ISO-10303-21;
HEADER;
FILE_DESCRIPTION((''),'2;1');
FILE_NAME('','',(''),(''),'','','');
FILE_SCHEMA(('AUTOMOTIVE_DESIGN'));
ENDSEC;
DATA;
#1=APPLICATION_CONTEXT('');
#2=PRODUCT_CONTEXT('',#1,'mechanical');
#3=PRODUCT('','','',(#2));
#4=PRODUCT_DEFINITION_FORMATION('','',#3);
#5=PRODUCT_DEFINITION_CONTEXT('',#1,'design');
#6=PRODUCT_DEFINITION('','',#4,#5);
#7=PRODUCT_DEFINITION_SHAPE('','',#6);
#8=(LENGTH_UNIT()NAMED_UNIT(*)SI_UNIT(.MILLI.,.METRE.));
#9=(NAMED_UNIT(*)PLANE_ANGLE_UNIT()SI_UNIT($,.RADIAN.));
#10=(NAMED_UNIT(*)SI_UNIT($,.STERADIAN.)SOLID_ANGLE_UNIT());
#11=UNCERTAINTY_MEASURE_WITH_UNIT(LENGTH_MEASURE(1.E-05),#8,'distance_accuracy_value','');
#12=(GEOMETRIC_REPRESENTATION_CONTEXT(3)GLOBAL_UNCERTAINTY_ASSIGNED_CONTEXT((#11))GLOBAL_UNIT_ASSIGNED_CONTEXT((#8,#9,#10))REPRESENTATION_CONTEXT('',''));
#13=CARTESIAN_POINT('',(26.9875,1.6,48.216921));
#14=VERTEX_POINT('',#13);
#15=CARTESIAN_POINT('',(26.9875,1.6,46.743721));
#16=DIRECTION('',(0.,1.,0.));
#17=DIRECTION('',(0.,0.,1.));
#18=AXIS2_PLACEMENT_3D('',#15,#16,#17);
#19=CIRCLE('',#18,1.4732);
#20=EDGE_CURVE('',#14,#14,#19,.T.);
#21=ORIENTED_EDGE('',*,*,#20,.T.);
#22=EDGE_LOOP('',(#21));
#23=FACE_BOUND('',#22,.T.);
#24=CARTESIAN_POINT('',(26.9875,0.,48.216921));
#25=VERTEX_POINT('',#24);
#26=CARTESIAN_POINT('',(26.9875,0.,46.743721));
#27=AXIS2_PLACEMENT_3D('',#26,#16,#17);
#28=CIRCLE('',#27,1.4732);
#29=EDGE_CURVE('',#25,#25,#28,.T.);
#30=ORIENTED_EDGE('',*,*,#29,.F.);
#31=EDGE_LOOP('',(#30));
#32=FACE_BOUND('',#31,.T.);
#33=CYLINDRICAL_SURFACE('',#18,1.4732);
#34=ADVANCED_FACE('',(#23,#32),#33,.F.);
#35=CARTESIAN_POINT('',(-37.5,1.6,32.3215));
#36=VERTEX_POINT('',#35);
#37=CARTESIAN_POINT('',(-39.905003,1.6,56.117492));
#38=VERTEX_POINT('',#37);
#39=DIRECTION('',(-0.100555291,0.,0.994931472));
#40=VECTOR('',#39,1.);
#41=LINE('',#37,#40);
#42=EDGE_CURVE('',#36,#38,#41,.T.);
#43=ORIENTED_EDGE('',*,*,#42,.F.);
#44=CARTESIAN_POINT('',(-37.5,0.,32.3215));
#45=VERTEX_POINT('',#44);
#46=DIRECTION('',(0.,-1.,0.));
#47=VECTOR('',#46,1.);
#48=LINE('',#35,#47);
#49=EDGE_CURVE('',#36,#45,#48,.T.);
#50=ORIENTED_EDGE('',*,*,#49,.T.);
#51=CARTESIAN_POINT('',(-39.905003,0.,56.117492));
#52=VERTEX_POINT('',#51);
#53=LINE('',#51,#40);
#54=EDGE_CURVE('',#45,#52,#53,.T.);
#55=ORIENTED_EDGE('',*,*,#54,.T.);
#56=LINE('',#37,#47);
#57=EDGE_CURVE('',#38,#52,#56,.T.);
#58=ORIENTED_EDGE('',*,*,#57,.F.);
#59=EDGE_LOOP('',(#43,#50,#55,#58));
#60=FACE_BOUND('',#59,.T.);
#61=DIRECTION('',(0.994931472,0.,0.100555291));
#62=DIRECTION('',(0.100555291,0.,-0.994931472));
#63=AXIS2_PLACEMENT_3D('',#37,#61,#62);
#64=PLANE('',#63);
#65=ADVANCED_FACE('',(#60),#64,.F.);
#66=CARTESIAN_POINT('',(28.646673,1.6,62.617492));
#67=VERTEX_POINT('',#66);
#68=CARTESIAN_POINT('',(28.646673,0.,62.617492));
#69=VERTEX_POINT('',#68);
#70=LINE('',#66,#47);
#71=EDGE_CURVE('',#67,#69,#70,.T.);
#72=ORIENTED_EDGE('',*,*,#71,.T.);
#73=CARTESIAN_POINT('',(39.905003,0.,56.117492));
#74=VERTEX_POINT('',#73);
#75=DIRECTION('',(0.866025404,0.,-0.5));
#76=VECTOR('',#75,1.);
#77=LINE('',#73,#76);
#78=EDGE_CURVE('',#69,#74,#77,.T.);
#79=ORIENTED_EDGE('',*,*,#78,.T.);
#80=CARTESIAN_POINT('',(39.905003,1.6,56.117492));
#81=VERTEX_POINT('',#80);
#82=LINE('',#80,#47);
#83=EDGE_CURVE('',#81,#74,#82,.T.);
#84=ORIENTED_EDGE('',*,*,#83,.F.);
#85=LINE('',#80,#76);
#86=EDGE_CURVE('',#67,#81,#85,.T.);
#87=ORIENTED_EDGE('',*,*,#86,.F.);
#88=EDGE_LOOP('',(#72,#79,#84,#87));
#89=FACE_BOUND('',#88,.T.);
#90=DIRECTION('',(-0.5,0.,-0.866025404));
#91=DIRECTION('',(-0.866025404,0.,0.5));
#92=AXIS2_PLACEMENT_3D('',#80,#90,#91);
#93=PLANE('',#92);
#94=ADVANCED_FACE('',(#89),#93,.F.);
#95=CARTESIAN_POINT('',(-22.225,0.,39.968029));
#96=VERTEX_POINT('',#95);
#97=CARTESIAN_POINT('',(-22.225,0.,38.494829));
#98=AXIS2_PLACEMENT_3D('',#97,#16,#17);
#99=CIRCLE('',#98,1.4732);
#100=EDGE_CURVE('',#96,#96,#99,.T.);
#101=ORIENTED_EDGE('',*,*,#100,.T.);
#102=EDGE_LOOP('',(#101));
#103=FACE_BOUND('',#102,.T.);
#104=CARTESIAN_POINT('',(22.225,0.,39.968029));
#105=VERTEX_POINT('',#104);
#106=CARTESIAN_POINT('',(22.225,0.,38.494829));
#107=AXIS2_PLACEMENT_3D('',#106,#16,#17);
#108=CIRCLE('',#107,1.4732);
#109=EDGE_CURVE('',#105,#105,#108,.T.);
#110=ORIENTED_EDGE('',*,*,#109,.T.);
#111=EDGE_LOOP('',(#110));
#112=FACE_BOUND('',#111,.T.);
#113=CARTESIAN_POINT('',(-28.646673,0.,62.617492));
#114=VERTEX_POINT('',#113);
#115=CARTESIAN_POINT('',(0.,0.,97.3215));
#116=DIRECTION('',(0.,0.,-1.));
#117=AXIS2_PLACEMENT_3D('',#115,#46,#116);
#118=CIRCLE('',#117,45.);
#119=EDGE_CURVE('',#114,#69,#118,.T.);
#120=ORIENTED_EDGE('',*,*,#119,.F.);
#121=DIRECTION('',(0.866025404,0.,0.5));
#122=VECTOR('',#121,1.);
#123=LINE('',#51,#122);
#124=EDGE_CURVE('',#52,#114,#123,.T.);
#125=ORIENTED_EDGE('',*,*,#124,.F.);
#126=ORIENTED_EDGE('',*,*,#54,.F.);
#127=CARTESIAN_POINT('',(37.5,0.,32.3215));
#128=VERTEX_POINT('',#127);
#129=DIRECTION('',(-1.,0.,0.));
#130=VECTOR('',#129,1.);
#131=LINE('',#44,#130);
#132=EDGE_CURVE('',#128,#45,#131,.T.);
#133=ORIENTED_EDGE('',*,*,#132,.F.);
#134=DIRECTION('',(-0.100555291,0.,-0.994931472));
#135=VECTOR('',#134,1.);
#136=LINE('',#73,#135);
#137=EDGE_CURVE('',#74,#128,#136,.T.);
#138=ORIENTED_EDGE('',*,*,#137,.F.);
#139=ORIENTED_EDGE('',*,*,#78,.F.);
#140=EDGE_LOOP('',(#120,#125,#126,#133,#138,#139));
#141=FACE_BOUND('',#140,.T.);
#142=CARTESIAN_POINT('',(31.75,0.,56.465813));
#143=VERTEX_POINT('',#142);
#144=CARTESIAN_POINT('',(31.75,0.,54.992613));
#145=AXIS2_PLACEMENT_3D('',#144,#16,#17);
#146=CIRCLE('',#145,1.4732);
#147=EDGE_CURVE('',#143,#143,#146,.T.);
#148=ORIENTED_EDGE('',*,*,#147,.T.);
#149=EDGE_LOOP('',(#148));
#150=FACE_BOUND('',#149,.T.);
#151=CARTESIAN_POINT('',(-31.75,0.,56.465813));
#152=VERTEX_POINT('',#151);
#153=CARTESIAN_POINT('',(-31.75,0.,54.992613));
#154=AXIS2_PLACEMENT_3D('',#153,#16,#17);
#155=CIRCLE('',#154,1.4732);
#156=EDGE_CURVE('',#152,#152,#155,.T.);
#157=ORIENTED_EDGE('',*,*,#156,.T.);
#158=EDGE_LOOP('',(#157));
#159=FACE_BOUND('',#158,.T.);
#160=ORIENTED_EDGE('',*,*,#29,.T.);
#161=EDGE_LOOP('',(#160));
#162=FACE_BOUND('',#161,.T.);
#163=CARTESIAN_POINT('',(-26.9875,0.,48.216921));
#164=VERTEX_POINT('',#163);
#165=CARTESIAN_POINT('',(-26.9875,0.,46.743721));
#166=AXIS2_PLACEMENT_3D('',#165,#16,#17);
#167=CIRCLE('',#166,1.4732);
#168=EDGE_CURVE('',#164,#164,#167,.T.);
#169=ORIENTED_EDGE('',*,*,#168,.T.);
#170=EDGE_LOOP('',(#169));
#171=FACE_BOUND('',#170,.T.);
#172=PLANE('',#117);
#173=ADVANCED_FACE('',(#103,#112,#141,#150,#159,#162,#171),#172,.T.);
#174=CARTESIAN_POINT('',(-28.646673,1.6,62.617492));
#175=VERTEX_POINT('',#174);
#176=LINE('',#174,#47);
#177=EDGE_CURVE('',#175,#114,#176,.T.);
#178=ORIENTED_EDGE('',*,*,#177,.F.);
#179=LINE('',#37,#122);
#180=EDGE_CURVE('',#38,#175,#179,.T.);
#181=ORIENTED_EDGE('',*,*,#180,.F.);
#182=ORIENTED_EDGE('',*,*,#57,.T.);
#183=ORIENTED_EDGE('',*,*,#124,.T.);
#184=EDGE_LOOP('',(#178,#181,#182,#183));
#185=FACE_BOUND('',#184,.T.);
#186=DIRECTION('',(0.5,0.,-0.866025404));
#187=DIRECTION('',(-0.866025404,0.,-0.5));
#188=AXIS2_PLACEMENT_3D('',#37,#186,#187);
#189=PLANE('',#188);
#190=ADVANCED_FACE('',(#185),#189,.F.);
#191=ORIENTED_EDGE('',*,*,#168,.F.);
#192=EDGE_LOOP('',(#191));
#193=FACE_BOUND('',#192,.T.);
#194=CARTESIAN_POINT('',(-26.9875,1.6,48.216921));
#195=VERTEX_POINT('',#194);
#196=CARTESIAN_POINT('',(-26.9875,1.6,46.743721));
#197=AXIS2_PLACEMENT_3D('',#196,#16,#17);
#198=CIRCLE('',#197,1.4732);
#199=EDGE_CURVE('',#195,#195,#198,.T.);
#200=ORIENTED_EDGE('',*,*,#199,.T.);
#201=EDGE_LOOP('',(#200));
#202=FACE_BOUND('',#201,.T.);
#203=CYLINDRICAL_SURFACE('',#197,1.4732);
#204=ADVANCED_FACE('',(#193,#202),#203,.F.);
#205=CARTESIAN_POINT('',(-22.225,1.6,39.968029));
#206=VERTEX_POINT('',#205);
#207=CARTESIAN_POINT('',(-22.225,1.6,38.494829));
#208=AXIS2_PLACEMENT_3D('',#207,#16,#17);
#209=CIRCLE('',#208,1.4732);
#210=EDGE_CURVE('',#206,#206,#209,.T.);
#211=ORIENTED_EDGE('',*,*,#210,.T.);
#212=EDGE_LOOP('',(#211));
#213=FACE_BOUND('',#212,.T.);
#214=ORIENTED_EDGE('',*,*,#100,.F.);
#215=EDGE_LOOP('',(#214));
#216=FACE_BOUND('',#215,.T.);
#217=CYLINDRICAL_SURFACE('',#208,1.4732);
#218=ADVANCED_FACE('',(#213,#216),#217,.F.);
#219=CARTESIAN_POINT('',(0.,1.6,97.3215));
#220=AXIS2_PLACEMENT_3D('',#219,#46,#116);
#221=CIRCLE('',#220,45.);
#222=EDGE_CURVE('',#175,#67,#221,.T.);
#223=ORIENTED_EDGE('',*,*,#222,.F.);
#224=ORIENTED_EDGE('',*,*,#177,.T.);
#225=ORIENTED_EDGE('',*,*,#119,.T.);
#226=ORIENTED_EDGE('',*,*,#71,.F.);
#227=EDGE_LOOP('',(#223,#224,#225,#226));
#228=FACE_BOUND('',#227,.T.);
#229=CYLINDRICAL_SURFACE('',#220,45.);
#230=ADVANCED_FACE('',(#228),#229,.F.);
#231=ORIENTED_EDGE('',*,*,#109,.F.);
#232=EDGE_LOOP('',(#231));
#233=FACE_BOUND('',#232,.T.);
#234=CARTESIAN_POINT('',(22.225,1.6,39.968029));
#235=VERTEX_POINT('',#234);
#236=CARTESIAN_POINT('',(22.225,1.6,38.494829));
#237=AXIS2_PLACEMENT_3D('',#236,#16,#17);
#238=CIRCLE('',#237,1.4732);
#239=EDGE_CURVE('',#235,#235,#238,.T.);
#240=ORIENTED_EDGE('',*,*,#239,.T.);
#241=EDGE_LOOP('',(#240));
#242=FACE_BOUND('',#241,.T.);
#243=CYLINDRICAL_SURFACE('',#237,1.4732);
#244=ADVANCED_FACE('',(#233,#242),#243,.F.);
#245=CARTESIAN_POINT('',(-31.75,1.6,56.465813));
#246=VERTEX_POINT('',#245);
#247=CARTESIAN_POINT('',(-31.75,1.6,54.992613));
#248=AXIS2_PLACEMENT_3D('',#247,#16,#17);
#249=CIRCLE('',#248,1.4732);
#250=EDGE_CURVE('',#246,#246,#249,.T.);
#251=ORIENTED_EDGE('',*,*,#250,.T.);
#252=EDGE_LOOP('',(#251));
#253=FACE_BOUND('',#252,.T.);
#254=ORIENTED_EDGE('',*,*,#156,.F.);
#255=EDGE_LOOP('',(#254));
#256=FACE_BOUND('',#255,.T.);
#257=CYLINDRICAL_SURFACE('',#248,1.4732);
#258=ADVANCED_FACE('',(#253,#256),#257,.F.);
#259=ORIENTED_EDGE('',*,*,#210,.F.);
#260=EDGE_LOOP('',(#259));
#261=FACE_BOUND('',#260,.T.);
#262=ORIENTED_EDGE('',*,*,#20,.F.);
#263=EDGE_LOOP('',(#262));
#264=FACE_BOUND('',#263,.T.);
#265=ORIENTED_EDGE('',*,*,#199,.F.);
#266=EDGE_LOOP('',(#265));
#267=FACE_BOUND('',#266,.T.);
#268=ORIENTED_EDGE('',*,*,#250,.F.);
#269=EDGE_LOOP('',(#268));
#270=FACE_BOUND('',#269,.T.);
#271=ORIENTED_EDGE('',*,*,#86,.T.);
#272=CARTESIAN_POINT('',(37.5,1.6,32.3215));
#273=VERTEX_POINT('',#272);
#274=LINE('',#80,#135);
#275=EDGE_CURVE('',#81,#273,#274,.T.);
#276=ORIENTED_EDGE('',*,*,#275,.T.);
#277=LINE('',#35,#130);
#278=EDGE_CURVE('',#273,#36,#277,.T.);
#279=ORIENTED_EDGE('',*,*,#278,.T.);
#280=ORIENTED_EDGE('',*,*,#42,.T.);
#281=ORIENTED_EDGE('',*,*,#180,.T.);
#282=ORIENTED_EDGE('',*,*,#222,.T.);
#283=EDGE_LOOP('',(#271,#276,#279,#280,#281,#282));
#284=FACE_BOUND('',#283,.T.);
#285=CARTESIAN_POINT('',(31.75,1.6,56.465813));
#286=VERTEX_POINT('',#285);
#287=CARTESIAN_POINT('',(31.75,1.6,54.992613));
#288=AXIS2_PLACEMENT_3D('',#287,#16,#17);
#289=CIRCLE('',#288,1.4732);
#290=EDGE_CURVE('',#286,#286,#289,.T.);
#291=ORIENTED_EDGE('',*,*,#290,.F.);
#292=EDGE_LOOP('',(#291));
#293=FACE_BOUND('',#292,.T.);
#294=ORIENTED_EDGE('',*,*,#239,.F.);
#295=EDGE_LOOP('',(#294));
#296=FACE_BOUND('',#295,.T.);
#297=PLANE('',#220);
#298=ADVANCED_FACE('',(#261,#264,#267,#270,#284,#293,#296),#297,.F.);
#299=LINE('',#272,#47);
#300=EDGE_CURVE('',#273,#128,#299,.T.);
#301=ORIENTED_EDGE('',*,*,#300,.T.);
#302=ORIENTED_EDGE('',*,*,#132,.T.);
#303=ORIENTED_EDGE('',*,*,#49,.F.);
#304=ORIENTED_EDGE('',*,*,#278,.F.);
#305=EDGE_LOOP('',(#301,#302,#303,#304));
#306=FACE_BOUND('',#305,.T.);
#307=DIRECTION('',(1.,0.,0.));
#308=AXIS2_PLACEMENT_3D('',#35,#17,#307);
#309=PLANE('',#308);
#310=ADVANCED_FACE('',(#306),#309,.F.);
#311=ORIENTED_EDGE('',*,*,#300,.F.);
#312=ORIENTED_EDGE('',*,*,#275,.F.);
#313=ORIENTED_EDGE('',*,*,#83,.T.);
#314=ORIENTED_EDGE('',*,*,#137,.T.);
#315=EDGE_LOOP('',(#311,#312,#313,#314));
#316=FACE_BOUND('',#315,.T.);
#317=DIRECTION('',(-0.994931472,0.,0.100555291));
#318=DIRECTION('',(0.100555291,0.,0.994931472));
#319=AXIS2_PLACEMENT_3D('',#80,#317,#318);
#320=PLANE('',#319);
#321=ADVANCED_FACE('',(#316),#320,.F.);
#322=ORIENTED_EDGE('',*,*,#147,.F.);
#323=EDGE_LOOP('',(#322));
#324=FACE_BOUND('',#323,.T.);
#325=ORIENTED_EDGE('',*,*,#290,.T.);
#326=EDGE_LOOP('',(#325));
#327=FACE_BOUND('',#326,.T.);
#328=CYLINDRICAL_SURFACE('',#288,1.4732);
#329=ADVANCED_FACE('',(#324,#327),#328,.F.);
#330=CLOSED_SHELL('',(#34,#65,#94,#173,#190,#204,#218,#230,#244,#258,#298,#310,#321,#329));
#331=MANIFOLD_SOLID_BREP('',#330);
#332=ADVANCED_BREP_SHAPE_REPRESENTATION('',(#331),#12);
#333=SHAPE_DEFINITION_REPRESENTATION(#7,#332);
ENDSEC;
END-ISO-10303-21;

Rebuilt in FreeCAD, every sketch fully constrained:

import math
import FreeCAD as App
import Part
import Sketcher

V = App.Vector
Q = App.Units.Quantity

doc = App.newDocument("Part")
body = doc.addObject("PartDesign::Body", "Body")

# Sketch on XZ plane
sketch1 = body.newObject("Sketcher::SketchObject", "Sketch")
sketch1.AttachmentSupport = (doc.getObject("XZ_Plane"), [""])
sketch1.MapMode = "FlatFace"
sketch1.addGeometry(Part.LineSegment(V(38, 32, 0), V(-38, 32, 0)), False)
sketch1.addGeometry(Part.LineSegment(V(-38, 32, 0), V(-40, 56, 0)), False)
sketch1.addGeometry(Part.LineSegment(V(-40, 56, 0), V(-29, 63, 0)), False)
sketch1.addGeometry(Part.ArcOfCircle(Part.Circle(V(0, 97, 0), V(0, 0, 1), 45), math.radians(-130), math.radians(-50)), False)
sketch1.addGeometry(Part.LineSegment(V(29, 63, 0), V(40, 56, 0)), False)
sketch1.addGeometry(Part.LineSegment(V(40, 56, 0), V(38, 32, 0)), False)
sketch1.addConstraint(Sketcher.Constraint("Coincident", 0, 2, 1, 1))
sketch1.addConstraint(Sketcher.Constraint("Coincident", 1, 2, 2, 1))
sketch1.addConstraint(Sketcher.Constraint("Coincident", 2, 2, 3, 1))
sketch1.addConstraint(Sketcher.Constraint("Coincident", 3, 2, 4, 1))
sketch1.addConstraint(Sketcher.Constraint("Coincident", 4, 2, 5, 1))
sketch1.addConstraint(Sketcher.Constraint("Coincident", 5, 2, 0, 1))
sketch1.addConstraint(Sketcher.Constraint("Horizontal", 0))
sketch1.addConstraint(Sketcher.Constraint("Symmetric", 2, 2, 3, 2, -2))
sketch1.addConstraint(Sketcher.Constraint("Symmetric", 1, 2, 4, 2, -2))
sketch1.addConstraint(Sketcher.Constraint("Equal", 1, 5))
sketch1.addConstraint(Sketcher.Constraint("Radius", 3, 45.0))
sketch1.addConstraint(Sketcher.Constraint("DistanceX", 0, 2, 0, 1, 75.0))
sketch1.addConstraint(Sketcher.Constraint("Angle", 2, Q("30 deg")))
sketch1.addConstraint(Sketcher.Constraint("Distance", 2, 13.0))
sketch1.addConstraint(Sketcher.Constraint("DistanceY", 0, 2, 3, 3, 65.0))
sketch1.addConstraint(Sketcher.Constraint("DistanceY", -1, 1, 3, 3, 97.3215))
sketch1.addConstraint(Sketcher.Constraint("Distance", 1, 23.917217))
pad1 = body.newObject("PartDesign::Pad", "Pad")
pad1.Profile = sketch1
pad1.Length = 1.6
pad1.Reversed = True

# Sketch on XZ plane
sketch2 = body.newObject("Sketcher::SketchObject", "Sketch001")
sketch2.AttachmentSupport = (doc.getObject("XZ_Plane"), [""])
sketch2.MapMode = "FlatFace"
sketch2.AttachmentOffset = App.Placement(V(0, 0, -1.6), App.Rotation())
sketch2.addGeometry(Part.Circle(V(22.2, 38.5, 0), V(0, 0, 1), 1.5), False)
sketch2.addGeometry(Part.Circle(V(27, 46.7, 0), V(0, 0, 1), 1.5), False)
sketch2.addGeometry(Part.Circle(V(31.8, 55, 0), V(0, 0, 1), 1.5), False)
sketch2.addConstraint(Sketcher.Constraint("Equal", 0, 1))
sketch2.addConstraint(Sketcher.Constraint("Equal", 1, 2))
sketch2.addConstraint(Sketcher.Constraint("Diameter", 0, 2.9464))
sketch2.addConstraint(Sketcher.Constraint("DistanceX", -1, 1, 2, 3, 31.75))
sketch2.addConstraint(Sketcher.Constraint("DistanceX", -1, 1, 0, 3, 22.225))
sketch2.addConstraint(Sketcher.Constraint("DistanceX", -1, 1, 1, 3, 26.9875))
sketch2.addConstraint(Sketcher.Constraint("DistanceY", -1, 1, 0, 3, 38.494829))
sketch2.addConstraint(Sketcher.Constraint("DistanceY", -1, 1, 1, 3, 46.743721))
sketch2.addConstraint(Sketcher.Constraint("DistanceY", 1, 3, 2, 3, 8.248892))
doc.recompute()
hole = body.newObject("PartDesign::Hole", "Hole")
hole.Profile = sketch2
hole.ThreadType = "None"
hole.Diameter = 2.9464
hole.DepthType = "ThroughAll"
hole.Reversed = True
doc.recompute()

mirrored = body.newObject("PartDesign::Mirrored", "Mirrored")
mirrored.Originals = [hole]
mirrored.MirrorPlane = (doc.getObject("YZ_Plane"), [""])
body.Tip = mirrored

doc.recompute()
